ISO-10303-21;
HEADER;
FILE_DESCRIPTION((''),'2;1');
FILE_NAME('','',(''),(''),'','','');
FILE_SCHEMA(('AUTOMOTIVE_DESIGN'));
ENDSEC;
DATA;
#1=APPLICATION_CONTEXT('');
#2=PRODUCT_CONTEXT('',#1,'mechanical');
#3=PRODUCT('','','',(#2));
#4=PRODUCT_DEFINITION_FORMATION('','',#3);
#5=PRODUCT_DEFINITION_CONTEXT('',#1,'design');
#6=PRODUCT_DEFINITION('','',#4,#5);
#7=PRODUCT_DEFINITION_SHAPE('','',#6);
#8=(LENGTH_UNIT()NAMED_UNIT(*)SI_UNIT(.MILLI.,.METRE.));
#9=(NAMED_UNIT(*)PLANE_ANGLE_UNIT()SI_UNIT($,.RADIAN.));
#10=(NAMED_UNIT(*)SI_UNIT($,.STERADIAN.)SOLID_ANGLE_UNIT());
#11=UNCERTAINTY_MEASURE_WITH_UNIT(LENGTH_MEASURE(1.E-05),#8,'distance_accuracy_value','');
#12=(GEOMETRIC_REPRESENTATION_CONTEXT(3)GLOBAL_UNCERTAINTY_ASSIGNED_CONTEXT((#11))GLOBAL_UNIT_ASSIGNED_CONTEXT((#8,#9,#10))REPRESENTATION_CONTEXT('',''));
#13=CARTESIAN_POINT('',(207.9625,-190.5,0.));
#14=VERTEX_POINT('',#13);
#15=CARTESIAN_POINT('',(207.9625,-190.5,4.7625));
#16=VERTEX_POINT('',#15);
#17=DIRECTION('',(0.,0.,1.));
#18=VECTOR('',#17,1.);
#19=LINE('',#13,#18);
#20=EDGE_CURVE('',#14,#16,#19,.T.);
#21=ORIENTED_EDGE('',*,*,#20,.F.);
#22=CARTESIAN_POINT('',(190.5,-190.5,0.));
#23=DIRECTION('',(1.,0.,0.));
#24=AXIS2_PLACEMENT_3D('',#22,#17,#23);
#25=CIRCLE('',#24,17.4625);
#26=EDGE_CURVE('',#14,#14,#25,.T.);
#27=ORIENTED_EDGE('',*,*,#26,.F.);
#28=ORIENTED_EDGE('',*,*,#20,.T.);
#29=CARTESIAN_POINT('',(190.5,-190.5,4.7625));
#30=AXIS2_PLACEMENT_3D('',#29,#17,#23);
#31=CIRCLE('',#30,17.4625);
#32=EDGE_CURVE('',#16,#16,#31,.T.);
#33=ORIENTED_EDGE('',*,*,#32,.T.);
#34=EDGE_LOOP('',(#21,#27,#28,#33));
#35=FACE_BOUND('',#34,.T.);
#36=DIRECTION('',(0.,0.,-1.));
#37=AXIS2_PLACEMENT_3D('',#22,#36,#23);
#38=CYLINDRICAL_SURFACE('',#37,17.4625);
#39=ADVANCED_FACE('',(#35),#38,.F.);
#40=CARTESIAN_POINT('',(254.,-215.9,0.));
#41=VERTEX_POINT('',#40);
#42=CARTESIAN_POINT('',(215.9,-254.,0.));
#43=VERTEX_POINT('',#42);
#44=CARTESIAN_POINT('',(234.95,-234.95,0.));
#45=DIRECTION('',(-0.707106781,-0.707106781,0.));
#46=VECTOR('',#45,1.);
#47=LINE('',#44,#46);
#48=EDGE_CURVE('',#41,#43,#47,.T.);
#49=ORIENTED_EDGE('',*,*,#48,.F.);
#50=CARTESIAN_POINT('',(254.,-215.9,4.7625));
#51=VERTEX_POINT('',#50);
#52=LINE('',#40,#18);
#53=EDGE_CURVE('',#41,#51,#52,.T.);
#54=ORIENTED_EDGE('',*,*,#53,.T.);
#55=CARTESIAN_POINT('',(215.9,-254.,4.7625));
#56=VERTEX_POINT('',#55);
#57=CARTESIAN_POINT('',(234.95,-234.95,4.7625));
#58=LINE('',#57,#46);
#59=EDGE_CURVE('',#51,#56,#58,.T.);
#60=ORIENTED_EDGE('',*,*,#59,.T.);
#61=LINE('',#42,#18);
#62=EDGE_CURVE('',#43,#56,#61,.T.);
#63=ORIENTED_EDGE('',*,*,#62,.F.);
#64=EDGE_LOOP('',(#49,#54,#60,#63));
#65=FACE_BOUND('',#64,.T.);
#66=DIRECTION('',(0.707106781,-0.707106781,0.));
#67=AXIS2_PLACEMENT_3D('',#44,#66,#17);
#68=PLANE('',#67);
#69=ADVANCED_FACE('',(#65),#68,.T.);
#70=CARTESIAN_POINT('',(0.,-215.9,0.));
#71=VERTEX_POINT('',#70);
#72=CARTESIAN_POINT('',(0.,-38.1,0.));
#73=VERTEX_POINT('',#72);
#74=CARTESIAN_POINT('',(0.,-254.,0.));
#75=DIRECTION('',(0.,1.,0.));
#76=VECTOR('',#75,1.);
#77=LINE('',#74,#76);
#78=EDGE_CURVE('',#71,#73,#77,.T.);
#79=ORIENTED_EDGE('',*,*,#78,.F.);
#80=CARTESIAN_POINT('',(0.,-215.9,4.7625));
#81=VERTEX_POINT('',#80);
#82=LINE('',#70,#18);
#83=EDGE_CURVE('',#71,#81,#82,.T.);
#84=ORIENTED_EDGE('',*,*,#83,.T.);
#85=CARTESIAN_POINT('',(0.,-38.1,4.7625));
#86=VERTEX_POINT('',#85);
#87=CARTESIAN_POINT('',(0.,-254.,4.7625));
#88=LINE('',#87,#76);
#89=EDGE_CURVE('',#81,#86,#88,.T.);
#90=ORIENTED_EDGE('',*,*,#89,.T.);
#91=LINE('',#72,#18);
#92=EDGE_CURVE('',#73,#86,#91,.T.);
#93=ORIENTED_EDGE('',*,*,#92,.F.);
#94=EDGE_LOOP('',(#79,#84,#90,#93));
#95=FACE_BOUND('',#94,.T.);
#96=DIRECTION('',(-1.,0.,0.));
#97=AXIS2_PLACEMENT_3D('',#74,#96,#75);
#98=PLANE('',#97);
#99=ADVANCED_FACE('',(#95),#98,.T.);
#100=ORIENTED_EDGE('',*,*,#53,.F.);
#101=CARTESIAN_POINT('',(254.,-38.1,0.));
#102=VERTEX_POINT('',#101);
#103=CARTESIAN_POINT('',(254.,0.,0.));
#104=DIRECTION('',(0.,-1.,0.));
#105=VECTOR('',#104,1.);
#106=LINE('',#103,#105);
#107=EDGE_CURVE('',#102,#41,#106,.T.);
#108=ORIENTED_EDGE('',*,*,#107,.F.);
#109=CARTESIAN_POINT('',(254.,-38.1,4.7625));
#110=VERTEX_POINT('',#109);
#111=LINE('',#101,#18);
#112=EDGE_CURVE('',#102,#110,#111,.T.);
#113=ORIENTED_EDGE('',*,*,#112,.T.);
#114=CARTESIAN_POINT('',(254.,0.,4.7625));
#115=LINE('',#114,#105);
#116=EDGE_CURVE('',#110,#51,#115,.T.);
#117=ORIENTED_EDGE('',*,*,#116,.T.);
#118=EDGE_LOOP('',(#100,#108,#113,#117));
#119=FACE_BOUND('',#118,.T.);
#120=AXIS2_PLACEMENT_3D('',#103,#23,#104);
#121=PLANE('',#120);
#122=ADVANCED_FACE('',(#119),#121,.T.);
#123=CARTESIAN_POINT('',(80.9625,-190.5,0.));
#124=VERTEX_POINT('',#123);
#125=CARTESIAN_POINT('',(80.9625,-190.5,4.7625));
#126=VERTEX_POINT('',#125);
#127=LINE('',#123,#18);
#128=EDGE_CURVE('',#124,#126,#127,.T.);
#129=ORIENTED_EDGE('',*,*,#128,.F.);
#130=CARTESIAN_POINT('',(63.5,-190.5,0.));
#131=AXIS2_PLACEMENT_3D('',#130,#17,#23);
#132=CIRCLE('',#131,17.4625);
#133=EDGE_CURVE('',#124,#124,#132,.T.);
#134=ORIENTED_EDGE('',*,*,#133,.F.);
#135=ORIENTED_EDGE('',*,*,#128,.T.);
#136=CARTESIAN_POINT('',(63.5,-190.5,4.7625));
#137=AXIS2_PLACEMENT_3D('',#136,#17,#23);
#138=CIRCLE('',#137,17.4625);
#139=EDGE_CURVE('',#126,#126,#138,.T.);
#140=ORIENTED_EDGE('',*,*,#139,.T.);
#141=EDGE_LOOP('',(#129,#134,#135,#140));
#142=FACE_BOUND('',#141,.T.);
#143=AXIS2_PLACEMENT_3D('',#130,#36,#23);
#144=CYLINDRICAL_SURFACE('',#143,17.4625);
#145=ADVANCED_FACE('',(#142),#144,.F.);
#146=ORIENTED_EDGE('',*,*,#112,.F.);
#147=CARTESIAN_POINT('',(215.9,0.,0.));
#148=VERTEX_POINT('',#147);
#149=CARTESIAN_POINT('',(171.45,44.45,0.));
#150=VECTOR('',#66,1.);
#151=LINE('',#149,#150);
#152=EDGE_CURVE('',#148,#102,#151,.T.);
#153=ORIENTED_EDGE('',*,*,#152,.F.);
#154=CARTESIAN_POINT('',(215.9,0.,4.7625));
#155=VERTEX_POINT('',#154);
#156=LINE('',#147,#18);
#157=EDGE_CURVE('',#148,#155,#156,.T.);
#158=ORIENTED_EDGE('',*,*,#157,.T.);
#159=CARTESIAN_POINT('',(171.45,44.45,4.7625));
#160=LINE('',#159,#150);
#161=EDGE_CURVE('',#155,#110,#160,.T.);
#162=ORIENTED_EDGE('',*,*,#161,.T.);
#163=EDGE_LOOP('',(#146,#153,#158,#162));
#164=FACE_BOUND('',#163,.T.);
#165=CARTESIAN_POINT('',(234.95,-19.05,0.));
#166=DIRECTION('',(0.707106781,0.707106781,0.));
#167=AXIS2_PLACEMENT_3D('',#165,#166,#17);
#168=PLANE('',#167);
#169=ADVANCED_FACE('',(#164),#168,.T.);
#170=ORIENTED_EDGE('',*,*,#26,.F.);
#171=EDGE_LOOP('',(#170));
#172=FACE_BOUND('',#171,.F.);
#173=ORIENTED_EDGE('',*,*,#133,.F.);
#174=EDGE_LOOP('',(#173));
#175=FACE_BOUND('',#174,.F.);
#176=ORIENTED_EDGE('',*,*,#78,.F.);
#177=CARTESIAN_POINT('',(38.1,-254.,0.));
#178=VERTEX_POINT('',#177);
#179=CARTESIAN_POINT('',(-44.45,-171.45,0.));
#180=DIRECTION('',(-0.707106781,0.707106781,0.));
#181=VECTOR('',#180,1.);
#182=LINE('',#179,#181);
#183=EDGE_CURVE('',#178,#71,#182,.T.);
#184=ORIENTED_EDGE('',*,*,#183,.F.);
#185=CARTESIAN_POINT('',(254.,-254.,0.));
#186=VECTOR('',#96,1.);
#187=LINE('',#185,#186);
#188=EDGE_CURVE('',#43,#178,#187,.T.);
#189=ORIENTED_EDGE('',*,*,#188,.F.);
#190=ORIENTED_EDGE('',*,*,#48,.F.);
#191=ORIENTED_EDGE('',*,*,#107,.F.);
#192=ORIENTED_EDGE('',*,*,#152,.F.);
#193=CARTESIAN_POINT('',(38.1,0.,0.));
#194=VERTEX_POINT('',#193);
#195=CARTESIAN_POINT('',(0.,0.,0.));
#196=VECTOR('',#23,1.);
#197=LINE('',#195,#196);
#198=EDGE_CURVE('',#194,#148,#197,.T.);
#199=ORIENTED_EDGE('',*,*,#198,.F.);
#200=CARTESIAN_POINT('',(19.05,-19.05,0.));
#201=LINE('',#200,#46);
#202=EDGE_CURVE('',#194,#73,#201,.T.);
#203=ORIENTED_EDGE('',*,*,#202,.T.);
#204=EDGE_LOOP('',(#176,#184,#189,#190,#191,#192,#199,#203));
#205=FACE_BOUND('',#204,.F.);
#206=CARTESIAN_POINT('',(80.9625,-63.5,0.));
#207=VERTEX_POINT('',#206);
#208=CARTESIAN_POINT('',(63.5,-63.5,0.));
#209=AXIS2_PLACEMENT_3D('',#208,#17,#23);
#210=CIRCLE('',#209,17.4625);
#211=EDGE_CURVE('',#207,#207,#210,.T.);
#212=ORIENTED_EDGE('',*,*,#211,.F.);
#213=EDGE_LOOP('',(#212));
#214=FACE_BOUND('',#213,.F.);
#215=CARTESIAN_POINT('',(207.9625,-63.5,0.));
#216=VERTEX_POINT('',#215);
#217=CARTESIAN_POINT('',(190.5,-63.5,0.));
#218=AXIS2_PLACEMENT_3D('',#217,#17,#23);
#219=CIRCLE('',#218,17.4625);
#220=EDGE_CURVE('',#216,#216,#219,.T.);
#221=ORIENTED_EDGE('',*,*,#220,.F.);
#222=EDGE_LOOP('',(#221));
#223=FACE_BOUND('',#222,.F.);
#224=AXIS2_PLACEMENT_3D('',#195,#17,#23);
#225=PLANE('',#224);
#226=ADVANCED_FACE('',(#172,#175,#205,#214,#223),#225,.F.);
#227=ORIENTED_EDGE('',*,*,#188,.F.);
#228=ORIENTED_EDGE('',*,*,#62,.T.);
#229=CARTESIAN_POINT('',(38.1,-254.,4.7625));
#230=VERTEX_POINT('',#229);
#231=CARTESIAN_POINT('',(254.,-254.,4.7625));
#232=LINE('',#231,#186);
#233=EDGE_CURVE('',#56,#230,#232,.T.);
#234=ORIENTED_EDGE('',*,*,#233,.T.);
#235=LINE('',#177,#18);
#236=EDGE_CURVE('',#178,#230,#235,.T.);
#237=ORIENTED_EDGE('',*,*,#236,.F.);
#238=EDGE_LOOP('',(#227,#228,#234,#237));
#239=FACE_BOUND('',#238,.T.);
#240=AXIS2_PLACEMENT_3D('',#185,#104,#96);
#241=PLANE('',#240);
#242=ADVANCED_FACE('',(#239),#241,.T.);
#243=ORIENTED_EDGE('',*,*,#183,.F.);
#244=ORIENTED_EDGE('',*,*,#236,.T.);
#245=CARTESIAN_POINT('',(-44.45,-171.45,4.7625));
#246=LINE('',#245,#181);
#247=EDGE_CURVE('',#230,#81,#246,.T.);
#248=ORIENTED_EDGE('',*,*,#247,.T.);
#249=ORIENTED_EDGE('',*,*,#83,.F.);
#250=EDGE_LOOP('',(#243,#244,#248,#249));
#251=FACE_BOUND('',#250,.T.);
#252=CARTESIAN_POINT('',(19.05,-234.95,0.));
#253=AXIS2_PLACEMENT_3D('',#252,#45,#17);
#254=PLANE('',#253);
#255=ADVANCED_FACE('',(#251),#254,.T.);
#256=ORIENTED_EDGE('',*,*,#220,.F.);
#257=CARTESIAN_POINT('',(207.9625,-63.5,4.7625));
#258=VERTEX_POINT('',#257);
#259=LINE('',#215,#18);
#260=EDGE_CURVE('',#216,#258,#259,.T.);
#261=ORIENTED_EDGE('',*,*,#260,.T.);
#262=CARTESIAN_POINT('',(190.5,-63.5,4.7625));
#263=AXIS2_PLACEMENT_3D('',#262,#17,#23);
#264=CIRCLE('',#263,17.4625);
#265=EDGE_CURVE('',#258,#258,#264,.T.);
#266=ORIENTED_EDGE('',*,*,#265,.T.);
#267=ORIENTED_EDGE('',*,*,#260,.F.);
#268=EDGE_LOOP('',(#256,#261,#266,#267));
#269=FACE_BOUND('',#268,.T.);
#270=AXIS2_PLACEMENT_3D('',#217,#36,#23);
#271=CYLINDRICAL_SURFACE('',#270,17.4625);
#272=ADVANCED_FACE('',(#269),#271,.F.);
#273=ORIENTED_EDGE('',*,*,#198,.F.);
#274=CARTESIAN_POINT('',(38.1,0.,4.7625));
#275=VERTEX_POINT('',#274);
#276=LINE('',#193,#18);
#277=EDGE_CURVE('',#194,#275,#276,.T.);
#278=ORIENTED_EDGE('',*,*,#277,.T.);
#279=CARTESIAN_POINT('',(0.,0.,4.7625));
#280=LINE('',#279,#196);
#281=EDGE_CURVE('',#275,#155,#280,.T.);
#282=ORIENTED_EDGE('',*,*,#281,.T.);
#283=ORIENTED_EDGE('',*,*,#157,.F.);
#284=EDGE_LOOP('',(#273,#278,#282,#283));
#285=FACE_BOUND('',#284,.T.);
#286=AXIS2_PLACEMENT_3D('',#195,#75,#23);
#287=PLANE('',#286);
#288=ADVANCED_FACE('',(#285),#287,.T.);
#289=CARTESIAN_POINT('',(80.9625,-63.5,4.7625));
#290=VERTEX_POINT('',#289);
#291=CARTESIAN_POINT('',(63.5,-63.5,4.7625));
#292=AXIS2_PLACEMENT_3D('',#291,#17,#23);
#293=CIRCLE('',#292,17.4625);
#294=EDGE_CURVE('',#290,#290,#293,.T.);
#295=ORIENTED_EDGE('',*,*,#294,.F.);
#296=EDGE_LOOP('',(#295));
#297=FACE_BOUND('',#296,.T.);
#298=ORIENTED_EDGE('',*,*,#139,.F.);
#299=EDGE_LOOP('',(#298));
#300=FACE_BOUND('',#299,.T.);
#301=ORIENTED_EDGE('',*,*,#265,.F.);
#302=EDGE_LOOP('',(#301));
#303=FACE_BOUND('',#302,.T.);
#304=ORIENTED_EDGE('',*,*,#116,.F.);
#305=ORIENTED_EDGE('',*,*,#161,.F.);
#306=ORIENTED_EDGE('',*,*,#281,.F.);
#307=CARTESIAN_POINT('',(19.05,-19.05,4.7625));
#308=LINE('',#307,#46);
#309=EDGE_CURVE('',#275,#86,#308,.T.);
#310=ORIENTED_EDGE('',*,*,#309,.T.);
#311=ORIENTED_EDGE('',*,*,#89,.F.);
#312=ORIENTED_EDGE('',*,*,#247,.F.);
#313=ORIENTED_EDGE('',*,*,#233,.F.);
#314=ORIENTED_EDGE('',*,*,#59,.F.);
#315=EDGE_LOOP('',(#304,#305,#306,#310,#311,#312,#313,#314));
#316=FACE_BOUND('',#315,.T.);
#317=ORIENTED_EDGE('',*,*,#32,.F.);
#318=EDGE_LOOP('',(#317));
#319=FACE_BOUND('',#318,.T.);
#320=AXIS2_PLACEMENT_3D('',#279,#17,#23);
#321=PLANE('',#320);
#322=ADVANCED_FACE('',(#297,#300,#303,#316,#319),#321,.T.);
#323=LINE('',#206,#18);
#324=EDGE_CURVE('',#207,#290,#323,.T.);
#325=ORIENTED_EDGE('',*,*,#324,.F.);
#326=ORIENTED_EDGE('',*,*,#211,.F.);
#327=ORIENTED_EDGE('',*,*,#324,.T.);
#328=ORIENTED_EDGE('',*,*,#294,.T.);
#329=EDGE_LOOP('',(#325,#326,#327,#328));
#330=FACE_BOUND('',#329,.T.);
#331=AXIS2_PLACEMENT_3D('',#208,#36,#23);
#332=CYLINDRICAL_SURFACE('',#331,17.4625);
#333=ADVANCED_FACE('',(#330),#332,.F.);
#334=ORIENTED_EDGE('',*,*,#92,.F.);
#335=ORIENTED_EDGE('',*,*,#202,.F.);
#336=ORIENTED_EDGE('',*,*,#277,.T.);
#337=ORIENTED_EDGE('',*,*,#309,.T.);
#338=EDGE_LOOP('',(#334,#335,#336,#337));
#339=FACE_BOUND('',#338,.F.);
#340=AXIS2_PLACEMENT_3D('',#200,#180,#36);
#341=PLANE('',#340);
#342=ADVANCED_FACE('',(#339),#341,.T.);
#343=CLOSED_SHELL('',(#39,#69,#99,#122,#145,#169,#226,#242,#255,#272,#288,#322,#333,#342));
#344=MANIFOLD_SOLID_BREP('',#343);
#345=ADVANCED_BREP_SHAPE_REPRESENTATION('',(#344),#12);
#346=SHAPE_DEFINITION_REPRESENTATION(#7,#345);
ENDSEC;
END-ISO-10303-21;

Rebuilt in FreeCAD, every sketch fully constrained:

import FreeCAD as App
import Part
import Sketcher
Q = App.Units.Quantity


def edges_at(feature, points):
    """Names of the edges that pass closest to the given points."""
    edges = feature.Shape.Edges
    near = lambda p: min(range(len(edges)), key=lambda i: edges[i].distToShape(Part.Vertex(*p))[0])
    return sorted({f"Edge{near(p) + 1}" for p in points})

doc = App.newDocument("Part")
params = doc.addObject("Spreadsheet::Sheet", "Params")
for row, (alias, value) in enumerate([
    ("sketch1_width", "10 in"),
    ("sketch1_diameter", "1.375 in"),
    ("pad1_length", "0.1875 in"),
    ("chamfer_size", "1.5 in"),
], start=1):
    params.set(f"A{row}", alias)
    params.set(f"B{row}", "=" + value)
    params.setAlias(f"B{row}", alias)

body = doc.addObject("PartDesign::Body", "Body")

sketch1 = body.newObject("Sketcher::SketchObject", "Sketch")
sketch1.AttachmentSupport = (doc.getObject("XY_Plane"), [""])
sketch1.MapMode = "FlatFace"
sketch1.addGeometry(Part.LineSegment(App.Vector(254, 0, 0), App.Vector(0, 0, 0)), False)
sketch1.addGeometry(Part.LineSegment(App.Vector(0, 0, 0), App.Vector(0, -254, 0)), False)
sketch1.addGeometry(Part.LineSegment(App.Vector(0, -254, 0), App.Vector(254, -254, 0)), False)
sketch1.addGeometry(Part.LineSegment(App.Vector(254, -254, 0), App.Vector(254, 0, 0)), False)
sketch1.addGeometry(Part.Circle(App.Vector(64, -190, 0), App.Vector(0, 0, 1), 17), False)
sketch1.addGeometry(Part.Circle(App.Vector(190, -190, 0), App.Vector(0, 0, 1), 17), False)
sketch1.addGeometry(Part.Circle(App.Vector(64, -64, 0), App.Vector(0, 0, 1), 17), False)
sketch1.addGeometry(Part.Circle(App.Vector(190, -64, 0), App.Vector(0, 0, 1), 17), False)
sketch1.addConstraint(Sketcher.Constraint("Coincident", 0, 2, 1, 1))
sketch1.addConstraint(Sketcher.Constraint("Coincident", 1, 2, 2, 1))
sketch1.addConstraint(Sketcher.Constraint("Coincident", 2, 2, 3, 1))
sketch1.addConstraint(Sketcher.Constraint("Coincident", 3, 2, 0, 1))
sketch1.addConstraint(Sketcher.Constraint("Horizontal", 0))
sketch1.addConstraint(Sketcher.Constraint("Vertical", 1))
sketch1.addConstraint(Sketcher.Constraint("Horizontal", 2))
sketch1.addConstraint(Sketcher.Constraint("Vertical", 3))
sketch1.addConstraint(Sketcher.Constraint("Coincident", 0, 2, -1, 1))
sketch1.addConstraint(Sketcher.Constraint("Equal", 4, 5))
sketch1.addConstraint(Sketcher.Constraint("Equal", 5, 6))
sketch1.addConstraint(Sketcher.Constraint("Equal", 6, 7))
sketch1.addConstraint(Sketcher.Constraint("Horizontal", 4, 3, 5, 3))
sketch1.addConstraint(Sketcher.Constraint("Horizontal", 6, 3, 7, 3))
sketch1.addConstraint(Sketcher.Constraint("Vertical", 4, 3, 6, 3))
sketch1.addConstraint(Sketcher.Constraint("Vertical", 5, 3, 7, 3))
sketch1.addConstraint(Sketcher.Constraint("Equal", 2, 1))
sketch1.addConstraint(Sketcher.Constraint("DistanceX", 0, 2, 0, 1, Q("10 in")))
sketch1.addConstraint(Sketcher.Constraint("Diameter", 4, Q("1.375 in")))
sketch1.addConstraint(Sketcher.Constraint("DistanceX", -1, 1, 4, 3, Q("2.5 in")))
sketch1.addConstraint(Sketcher.Constraint("DistanceY", 6, 3, -1, 1, Q("2.5 in")))
sketch1.addConstraint(Sketcher.Constraint("DistanceY", 1, 2, 4, 3, Q("2.5 in")))
sketch1.addConstraint(Sketcher.Constraint("DistanceX", 5, 3, 2, 2, Q("2.5 in")))
sketch1.setExpression("Constraints[17]", "Params.sketch1_width")
sketch1.setExpression("Constraints[18]", "Params.sketch1_diameter")
pad1 = body.newObject("PartDesign::Pad", "Pad")
pad1.Profile = sketch1
pad1.setExpression("Length", "Params.pad1_length")
doc.recompute()

chamfer = body.newObject("PartDesign::Chamfer", "Chamfer")
chamfer.Base = (pad1, edges_at(pad1, [
    (0, 0, 2.381),
    (0, -254, 2.381),
    (254, -254, 2.381),
    (254, 0, 2.381),
]))
chamfer.setExpression("Size", "Params.chamfer_size")

doc.recompute()
